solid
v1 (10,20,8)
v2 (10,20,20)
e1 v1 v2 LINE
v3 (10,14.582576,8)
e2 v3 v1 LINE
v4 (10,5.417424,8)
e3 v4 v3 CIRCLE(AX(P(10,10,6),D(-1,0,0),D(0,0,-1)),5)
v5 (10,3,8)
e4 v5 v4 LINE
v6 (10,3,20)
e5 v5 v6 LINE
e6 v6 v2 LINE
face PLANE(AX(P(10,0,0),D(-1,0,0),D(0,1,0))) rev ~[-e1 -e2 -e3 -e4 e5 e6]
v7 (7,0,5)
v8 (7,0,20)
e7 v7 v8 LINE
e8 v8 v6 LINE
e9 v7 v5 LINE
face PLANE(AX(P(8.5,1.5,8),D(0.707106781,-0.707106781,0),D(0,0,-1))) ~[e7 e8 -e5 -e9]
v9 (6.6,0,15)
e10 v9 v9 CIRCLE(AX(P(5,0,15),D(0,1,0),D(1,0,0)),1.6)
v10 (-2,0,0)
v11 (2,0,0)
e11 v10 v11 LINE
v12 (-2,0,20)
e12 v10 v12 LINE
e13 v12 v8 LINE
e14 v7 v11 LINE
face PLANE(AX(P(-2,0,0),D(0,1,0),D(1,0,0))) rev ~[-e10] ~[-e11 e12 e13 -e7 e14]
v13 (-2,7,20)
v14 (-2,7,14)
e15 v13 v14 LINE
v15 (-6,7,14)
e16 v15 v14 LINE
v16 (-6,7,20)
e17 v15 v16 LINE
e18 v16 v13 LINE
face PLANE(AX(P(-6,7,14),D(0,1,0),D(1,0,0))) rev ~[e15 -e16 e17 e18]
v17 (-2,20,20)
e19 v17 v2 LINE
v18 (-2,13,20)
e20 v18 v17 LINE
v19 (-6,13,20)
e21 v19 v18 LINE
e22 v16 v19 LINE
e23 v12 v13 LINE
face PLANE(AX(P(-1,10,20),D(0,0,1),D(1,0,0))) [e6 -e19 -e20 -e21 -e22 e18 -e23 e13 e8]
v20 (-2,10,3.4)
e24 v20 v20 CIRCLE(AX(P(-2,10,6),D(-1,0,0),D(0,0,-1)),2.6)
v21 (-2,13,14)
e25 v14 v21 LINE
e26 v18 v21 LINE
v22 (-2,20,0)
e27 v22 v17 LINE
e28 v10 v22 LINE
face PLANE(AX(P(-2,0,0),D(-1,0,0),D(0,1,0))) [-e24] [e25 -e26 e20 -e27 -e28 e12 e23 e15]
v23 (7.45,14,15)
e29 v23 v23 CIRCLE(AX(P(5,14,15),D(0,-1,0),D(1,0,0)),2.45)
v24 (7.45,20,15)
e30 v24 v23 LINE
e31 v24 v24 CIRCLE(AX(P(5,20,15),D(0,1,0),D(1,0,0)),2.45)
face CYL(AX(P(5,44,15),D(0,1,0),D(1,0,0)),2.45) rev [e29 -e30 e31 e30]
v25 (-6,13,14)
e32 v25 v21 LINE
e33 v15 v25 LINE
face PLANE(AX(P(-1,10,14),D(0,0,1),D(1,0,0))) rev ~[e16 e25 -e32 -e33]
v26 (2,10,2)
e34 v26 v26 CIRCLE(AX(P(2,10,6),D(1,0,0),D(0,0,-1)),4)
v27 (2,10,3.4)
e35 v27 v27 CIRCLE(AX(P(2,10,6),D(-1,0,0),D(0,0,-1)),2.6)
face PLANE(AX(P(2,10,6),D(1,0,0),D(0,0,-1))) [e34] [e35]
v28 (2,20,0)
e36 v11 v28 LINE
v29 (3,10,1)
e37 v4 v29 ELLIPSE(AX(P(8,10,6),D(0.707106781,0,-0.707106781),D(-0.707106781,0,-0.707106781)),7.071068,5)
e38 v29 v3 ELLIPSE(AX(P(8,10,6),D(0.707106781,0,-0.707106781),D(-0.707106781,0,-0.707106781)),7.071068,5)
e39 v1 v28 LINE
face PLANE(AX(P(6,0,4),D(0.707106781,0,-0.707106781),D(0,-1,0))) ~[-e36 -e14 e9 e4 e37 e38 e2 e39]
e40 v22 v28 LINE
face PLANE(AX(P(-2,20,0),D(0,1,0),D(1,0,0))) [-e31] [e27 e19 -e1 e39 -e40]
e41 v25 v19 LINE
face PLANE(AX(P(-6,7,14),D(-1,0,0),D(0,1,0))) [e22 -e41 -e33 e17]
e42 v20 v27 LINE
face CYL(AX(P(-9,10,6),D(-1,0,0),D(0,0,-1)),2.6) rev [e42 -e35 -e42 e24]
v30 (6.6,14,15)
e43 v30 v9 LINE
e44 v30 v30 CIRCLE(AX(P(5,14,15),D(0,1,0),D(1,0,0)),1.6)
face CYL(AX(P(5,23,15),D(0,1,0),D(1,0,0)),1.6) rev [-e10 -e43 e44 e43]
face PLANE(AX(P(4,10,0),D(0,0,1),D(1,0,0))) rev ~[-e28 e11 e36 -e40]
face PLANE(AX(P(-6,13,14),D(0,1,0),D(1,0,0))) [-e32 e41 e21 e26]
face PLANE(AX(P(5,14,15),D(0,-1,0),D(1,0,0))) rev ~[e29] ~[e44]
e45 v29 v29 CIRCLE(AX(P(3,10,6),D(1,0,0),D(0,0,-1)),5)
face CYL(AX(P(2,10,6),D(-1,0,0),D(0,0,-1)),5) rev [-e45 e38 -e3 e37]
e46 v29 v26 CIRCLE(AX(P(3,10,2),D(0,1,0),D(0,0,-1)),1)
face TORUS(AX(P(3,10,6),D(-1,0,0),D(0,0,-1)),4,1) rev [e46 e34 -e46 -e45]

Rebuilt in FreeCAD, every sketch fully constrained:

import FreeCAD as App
import Part
import Sketcher

V = App.Vector
Q = App.Units.Quantity


def edges_at(feature, points):
    """Names of the edges that pass closest to the given points."""
    edges = feature.Shape.Edges
    near = lambda p: min(range(len(edges)), key=lambda i: edges[i].distToShape(Part.Vertex(*p))[0])
    return sorted({f"Edge{near(p) + 1}" for p in points})

doc = App.newDocument("Part")
body = doc.addObject("PartDesign::Body", "Body")

# Sketch on YZ plane
sketch1 = body.newObject("Sketcher::SketchObject", "Sketch")
sketch1.AttachmentSupport = (doc.getObject("YZ_Plane"), [""])
sketch1.MapMode = "FlatFace"
sketch1.AttachmentOffset = App.Placement(V(0, 0, -9), App.Rotation())
sketch1.addGeometry(Part.Circle(V(10, 6, 0), V(0, 0, 1), 2.6), False)
sketch1.addConstraint([
    Sketcher.Constraint("Diameter", 0, Q("5.2 mm")),
    Sketcher.Constraint("DistanceX", -1, 1, 0, 3, Q("10 mm")),
    Sketcher.Constraint("DistanceY", -1, 1, 0, 3, Q("6 mm")),
])
pad1 = body.newObject("PartDesign::Pad", "Pad")
pad1.Profile = sketch1
pad1.Length = 20
body2 = doc.addObject("PartDesign::Body", "Body001")

# Sketch on YZ plane
sketch2 = body2.newObject("Sketcher::SketchObject", "Sketch001")
sketch2.AttachmentSupport = (doc.getObject("YZ_Plane001"), [""])
sketch2.MapMode = "FlatFace"
sketch2.AttachmentOffset = App.Placement(V(0, 0, 6), App.Rotation())
sketch2.addGeometry(Part.Circle(V(10, 6, 0), V(0, 0, 1), 5), False)
sketch2.addConstraint([
    Sketcher.Constraint("Diameter", 0, Q("10 mm")),
    Sketcher.Constraint("DistanceX", -1, 1, 0, 3, Q("10 mm")),
    Sketcher.Constraint("DistanceY", -1, 1, 0, 3, Q("6 mm")),
])
pad2 = body2.newObject("PartDesign::Pad", "Pad001")
pad2.Profile = sketch2
pad2.Length = 16
doc.recompute()

fillet = body2.newObject("PartDesign::Fillet", "Fillet")
fillet.Base = (pad2, edges_at(pad2, [(6, 10, 11)]))
fillet.Radius = 1
body3 = doc.addObject("PartDesign::Body", "Body002")
doc.recompute()

body2.Placement = App.Placement(V(-4, 0, 0), App.Rotation(V(0, 0, 1), 0))
boolean = body3.newObject("PartDesign::Boolean", "Boolean")
boolean.Type = "Fuse"
boolean.addObjects([body2])
body4 = doc.addObject("PartDesign::Body", "Body003")

# Sketch on XZ plane
sketch3 = body4.newObject("Sketcher::SketchObject", "Sketch002")
sketch3.AttachmentSupport = (doc.getObject("XZ_Plane003"), [""])
sketch3.MapMode = "FlatFace"
sketch3.AttachmentOffset = App.Placement(V(0, 0, -23), App.Rotation())
sketch3.addGeometry(Part.Circle(V(7, 15, 0), V(0, 0, 1), 1.6), False)
sketch3.addConstraint([
    Sketcher.Constraint("Diameter", 0, Q("3.2 mm")),
    Sketcher.Constraint("DistanceX", -1, 1, 0, 3, Q("7 mm")),
    Sketcher.Constraint("DistanceY", -1, 1, 0, 3, Q("15 mm")),
])
pad3 = body4.newObject("PartDesign::Pad", "Pad002")
pad3.Profile = sketch3
pad3.Length = 28
body5 = doc.addObject("PartDesign::Body", "Body004")

# Sketch on XZ plane
sketch4 = body5.newObject("Sketcher::SketchObject", "Sketch003")
sketch4.AttachmentSupport = (doc.getObject("XZ_Plane004"), [""])
sketch4.MapMode = "FlatFace"
sketch4.AttachmentOffset = App.Placement(V(0, 0, -44), App.Rotation())
sketch4.addGeometry(Part.Circle(V(7, 15, 0), V(0, 0, 1), 2.5), False)
sketch4.addConstraint([
    Sketcher.Constraint("Diameter", 0, Q("4.9 mm")),
    Sketcher.Constraint("DistanceX", -1, 1, 0, 3, Q("7 mm")),
    Sketcher.Constraint("DistanceY", -1, 1, 0, 3, Q("15 mm")),
])
pad4 = body5.newObject("PartDesign::Pad", "Pad003")
pad4.Profile = sketch4
pad4.Length = 30
body6 = doc.addObject("PartDesign::Body", "Body005")

# Sketch on XY plane
sketch5 = body6.newObject("Sketcher::SketchObject", "Sketch004")
sketch5.AttachmentSupport = (doc.getObject("XY_Plane005"), [""])
sketch5.MapMode = "FlatFace"
sketch5.AttachmentOffset = App.Placement(V(0, 0, 14), App.Rotation())
sketch5.addGeometry([
    Part.LineSegment(V(-4, 13, 0), V(-4, 7, 0)),
    Part.LineSegment(V(-4, 7, 0), V(6, 7, 0)),
    Part.LineSegment(V(6, 7, 0), V(6, 13, 0)),
    Part.LineSegment(V(6, 13, 0), V(-4, 13, 0)),
], False)
sketch5.addConstraint([
    Sketcher.Constraint("Coincident", 0, 2, 1, 1),
    Sketcher.Constraint("Coincident", 1, 2, 2, 1),
    Sketcher.Constraint("Coincident", 2, 2, 3, 1),
    Sketcher.Constraint("Coincident", 3, 2, 0, 1),
    Sketcher.Constraint("Vertical", 0),
    Sketcher.Constraint("Horizontal", 1),
    Sketcher.Constraint("Vertical", 2),
    Sketcher.Constraint("Horizontal", 3),
    Sketcher.Constraint("DistanceX", 1, 1, 1, 2, Q("10 mm")),
    Sketcher.Constraint("DistanceY", 0, 2, 0, 1, Q("6 mm")),
    Sketcher.Constraint("DistanceX", 0, 2, -1, 1, Q("4 mm")),
    Sketcher.Constraint("DistanceY", -1, 1, 0, 2, Q("7 mm")),
])
pad5 = body6.newObject("PartDesign::Pad", "Pad004")
pad5.Profile = sketch5
pad5.Length = 6
body7 = doc.addObject("PartDesign::Body", "Body006")

# Sketch on XY plane
sketch6 = body7.newObject("Sketcher::SketchObject", "Sketch005")
sketch6.AttachmentSupport = (doc.getObject("XY_Plane006"), [""])
sketch6.MapMode = "FlatFace"
sketch6.addGeometry([
    Part.LineSegment(V(0, 20, 0), V(0, 0, 0)),
    Part.LineSegment(V(0, 0, 0), V(12, 0, 0)),
    Part.LineSegment(V(12, 0, 0), V(12, 20, 0)),
    Part.LineSegment(V(12, 20, 0), V(0, 20, 0)),
], False)
sketch6.addConstraint([
    Sketcher.Constraint("Coincident", 0, 2, 1, 1),
    Sketcher.Constraint("Coincident", 1, 2, 2, 1),
    Sketcher.Constraint("Coincident", 2, 2, 3, 1),
    Sketcher.Constraint("Coincident", 3, 2, 0, 1),
    Sketcher.Constraint("Vertical", 0),
    Sketcher.Constraint("Horizontal", 1),
    Sketcher.Constraint("Vertical", 2),
    Sketcher.Constraint("Horizontal", 3),
    Sketcher.Constraint("Coincident", 0, 2, -1, 1),
    Sketcher.Constraint("DistanceX", 1, 1, 1, 2, Q("12 mm")),
    Sketcher.Constraint("DistanceY", 0, 2, 0, 1, Q("20 mm")),
])
pad6 = body7.newObject("PartDesign::Pad", "Pad005")
pad6.Profile = sketch6
pad6.Length = 20
doc.recompute()

boolean2 = body7.newObject("PartDesign::Boolean", "Boolean001")
boolean2.Type = "Fuse"
boolean2.addObjects([body6])
doc.recompute()

boolean3 = body7.newObject("PartDesign::Boolean", "Boolean002")
boolean3.Type = "Cut"
boolean3.addObjects([body5])
doc.recompute()

boolean4 = body7.newObject("PartDesign::Boolean", "Boolean003")
boolean4.Type = "Cut"
boolean4.addObjects([body4])
doc.recompute()

chamfer = body7.newObject("PartDesign::Chamfer", "Chamfer")
chamfer.Base = (boolean4, edges_at(boolean4, [(12, 10, 0)]))
chamfer.Size = 8
body8 = doc.addObject("PartDesign::Body", "Body007")
doc.recompute()

body7.Placement = App.Placement(V(-2, 0, 0), App.Rotation(V(0, 0, 1), 0))
boolean5 = body8.newObject("PartDesign::Boolean", "Boolean004")
boolean5.Type = "Fuse"
boolean5.addObjects([body7])
doc.recompute()

boolean6 = body8.newObject("PartDesign::Boolean", "Boolean005")
boolean6.Type = "Cut"
boolean6.addObjects([body3])
doc.recompute()

boolean7 = body8.newObject("PartDesign::Boolean", "Boolean006")
boolean7.Type = "Cut"
boolean7.addObjects([body])
doc.recompute()

chamfer2 = body8.newObject("PartDesign::Chamfer", "Chamfer001")
chamfer2.Base = (boolean7, edges_at(boolean7, [(10, 0, 14)]))
chamfer2.Size = 3

doc.recompute()
